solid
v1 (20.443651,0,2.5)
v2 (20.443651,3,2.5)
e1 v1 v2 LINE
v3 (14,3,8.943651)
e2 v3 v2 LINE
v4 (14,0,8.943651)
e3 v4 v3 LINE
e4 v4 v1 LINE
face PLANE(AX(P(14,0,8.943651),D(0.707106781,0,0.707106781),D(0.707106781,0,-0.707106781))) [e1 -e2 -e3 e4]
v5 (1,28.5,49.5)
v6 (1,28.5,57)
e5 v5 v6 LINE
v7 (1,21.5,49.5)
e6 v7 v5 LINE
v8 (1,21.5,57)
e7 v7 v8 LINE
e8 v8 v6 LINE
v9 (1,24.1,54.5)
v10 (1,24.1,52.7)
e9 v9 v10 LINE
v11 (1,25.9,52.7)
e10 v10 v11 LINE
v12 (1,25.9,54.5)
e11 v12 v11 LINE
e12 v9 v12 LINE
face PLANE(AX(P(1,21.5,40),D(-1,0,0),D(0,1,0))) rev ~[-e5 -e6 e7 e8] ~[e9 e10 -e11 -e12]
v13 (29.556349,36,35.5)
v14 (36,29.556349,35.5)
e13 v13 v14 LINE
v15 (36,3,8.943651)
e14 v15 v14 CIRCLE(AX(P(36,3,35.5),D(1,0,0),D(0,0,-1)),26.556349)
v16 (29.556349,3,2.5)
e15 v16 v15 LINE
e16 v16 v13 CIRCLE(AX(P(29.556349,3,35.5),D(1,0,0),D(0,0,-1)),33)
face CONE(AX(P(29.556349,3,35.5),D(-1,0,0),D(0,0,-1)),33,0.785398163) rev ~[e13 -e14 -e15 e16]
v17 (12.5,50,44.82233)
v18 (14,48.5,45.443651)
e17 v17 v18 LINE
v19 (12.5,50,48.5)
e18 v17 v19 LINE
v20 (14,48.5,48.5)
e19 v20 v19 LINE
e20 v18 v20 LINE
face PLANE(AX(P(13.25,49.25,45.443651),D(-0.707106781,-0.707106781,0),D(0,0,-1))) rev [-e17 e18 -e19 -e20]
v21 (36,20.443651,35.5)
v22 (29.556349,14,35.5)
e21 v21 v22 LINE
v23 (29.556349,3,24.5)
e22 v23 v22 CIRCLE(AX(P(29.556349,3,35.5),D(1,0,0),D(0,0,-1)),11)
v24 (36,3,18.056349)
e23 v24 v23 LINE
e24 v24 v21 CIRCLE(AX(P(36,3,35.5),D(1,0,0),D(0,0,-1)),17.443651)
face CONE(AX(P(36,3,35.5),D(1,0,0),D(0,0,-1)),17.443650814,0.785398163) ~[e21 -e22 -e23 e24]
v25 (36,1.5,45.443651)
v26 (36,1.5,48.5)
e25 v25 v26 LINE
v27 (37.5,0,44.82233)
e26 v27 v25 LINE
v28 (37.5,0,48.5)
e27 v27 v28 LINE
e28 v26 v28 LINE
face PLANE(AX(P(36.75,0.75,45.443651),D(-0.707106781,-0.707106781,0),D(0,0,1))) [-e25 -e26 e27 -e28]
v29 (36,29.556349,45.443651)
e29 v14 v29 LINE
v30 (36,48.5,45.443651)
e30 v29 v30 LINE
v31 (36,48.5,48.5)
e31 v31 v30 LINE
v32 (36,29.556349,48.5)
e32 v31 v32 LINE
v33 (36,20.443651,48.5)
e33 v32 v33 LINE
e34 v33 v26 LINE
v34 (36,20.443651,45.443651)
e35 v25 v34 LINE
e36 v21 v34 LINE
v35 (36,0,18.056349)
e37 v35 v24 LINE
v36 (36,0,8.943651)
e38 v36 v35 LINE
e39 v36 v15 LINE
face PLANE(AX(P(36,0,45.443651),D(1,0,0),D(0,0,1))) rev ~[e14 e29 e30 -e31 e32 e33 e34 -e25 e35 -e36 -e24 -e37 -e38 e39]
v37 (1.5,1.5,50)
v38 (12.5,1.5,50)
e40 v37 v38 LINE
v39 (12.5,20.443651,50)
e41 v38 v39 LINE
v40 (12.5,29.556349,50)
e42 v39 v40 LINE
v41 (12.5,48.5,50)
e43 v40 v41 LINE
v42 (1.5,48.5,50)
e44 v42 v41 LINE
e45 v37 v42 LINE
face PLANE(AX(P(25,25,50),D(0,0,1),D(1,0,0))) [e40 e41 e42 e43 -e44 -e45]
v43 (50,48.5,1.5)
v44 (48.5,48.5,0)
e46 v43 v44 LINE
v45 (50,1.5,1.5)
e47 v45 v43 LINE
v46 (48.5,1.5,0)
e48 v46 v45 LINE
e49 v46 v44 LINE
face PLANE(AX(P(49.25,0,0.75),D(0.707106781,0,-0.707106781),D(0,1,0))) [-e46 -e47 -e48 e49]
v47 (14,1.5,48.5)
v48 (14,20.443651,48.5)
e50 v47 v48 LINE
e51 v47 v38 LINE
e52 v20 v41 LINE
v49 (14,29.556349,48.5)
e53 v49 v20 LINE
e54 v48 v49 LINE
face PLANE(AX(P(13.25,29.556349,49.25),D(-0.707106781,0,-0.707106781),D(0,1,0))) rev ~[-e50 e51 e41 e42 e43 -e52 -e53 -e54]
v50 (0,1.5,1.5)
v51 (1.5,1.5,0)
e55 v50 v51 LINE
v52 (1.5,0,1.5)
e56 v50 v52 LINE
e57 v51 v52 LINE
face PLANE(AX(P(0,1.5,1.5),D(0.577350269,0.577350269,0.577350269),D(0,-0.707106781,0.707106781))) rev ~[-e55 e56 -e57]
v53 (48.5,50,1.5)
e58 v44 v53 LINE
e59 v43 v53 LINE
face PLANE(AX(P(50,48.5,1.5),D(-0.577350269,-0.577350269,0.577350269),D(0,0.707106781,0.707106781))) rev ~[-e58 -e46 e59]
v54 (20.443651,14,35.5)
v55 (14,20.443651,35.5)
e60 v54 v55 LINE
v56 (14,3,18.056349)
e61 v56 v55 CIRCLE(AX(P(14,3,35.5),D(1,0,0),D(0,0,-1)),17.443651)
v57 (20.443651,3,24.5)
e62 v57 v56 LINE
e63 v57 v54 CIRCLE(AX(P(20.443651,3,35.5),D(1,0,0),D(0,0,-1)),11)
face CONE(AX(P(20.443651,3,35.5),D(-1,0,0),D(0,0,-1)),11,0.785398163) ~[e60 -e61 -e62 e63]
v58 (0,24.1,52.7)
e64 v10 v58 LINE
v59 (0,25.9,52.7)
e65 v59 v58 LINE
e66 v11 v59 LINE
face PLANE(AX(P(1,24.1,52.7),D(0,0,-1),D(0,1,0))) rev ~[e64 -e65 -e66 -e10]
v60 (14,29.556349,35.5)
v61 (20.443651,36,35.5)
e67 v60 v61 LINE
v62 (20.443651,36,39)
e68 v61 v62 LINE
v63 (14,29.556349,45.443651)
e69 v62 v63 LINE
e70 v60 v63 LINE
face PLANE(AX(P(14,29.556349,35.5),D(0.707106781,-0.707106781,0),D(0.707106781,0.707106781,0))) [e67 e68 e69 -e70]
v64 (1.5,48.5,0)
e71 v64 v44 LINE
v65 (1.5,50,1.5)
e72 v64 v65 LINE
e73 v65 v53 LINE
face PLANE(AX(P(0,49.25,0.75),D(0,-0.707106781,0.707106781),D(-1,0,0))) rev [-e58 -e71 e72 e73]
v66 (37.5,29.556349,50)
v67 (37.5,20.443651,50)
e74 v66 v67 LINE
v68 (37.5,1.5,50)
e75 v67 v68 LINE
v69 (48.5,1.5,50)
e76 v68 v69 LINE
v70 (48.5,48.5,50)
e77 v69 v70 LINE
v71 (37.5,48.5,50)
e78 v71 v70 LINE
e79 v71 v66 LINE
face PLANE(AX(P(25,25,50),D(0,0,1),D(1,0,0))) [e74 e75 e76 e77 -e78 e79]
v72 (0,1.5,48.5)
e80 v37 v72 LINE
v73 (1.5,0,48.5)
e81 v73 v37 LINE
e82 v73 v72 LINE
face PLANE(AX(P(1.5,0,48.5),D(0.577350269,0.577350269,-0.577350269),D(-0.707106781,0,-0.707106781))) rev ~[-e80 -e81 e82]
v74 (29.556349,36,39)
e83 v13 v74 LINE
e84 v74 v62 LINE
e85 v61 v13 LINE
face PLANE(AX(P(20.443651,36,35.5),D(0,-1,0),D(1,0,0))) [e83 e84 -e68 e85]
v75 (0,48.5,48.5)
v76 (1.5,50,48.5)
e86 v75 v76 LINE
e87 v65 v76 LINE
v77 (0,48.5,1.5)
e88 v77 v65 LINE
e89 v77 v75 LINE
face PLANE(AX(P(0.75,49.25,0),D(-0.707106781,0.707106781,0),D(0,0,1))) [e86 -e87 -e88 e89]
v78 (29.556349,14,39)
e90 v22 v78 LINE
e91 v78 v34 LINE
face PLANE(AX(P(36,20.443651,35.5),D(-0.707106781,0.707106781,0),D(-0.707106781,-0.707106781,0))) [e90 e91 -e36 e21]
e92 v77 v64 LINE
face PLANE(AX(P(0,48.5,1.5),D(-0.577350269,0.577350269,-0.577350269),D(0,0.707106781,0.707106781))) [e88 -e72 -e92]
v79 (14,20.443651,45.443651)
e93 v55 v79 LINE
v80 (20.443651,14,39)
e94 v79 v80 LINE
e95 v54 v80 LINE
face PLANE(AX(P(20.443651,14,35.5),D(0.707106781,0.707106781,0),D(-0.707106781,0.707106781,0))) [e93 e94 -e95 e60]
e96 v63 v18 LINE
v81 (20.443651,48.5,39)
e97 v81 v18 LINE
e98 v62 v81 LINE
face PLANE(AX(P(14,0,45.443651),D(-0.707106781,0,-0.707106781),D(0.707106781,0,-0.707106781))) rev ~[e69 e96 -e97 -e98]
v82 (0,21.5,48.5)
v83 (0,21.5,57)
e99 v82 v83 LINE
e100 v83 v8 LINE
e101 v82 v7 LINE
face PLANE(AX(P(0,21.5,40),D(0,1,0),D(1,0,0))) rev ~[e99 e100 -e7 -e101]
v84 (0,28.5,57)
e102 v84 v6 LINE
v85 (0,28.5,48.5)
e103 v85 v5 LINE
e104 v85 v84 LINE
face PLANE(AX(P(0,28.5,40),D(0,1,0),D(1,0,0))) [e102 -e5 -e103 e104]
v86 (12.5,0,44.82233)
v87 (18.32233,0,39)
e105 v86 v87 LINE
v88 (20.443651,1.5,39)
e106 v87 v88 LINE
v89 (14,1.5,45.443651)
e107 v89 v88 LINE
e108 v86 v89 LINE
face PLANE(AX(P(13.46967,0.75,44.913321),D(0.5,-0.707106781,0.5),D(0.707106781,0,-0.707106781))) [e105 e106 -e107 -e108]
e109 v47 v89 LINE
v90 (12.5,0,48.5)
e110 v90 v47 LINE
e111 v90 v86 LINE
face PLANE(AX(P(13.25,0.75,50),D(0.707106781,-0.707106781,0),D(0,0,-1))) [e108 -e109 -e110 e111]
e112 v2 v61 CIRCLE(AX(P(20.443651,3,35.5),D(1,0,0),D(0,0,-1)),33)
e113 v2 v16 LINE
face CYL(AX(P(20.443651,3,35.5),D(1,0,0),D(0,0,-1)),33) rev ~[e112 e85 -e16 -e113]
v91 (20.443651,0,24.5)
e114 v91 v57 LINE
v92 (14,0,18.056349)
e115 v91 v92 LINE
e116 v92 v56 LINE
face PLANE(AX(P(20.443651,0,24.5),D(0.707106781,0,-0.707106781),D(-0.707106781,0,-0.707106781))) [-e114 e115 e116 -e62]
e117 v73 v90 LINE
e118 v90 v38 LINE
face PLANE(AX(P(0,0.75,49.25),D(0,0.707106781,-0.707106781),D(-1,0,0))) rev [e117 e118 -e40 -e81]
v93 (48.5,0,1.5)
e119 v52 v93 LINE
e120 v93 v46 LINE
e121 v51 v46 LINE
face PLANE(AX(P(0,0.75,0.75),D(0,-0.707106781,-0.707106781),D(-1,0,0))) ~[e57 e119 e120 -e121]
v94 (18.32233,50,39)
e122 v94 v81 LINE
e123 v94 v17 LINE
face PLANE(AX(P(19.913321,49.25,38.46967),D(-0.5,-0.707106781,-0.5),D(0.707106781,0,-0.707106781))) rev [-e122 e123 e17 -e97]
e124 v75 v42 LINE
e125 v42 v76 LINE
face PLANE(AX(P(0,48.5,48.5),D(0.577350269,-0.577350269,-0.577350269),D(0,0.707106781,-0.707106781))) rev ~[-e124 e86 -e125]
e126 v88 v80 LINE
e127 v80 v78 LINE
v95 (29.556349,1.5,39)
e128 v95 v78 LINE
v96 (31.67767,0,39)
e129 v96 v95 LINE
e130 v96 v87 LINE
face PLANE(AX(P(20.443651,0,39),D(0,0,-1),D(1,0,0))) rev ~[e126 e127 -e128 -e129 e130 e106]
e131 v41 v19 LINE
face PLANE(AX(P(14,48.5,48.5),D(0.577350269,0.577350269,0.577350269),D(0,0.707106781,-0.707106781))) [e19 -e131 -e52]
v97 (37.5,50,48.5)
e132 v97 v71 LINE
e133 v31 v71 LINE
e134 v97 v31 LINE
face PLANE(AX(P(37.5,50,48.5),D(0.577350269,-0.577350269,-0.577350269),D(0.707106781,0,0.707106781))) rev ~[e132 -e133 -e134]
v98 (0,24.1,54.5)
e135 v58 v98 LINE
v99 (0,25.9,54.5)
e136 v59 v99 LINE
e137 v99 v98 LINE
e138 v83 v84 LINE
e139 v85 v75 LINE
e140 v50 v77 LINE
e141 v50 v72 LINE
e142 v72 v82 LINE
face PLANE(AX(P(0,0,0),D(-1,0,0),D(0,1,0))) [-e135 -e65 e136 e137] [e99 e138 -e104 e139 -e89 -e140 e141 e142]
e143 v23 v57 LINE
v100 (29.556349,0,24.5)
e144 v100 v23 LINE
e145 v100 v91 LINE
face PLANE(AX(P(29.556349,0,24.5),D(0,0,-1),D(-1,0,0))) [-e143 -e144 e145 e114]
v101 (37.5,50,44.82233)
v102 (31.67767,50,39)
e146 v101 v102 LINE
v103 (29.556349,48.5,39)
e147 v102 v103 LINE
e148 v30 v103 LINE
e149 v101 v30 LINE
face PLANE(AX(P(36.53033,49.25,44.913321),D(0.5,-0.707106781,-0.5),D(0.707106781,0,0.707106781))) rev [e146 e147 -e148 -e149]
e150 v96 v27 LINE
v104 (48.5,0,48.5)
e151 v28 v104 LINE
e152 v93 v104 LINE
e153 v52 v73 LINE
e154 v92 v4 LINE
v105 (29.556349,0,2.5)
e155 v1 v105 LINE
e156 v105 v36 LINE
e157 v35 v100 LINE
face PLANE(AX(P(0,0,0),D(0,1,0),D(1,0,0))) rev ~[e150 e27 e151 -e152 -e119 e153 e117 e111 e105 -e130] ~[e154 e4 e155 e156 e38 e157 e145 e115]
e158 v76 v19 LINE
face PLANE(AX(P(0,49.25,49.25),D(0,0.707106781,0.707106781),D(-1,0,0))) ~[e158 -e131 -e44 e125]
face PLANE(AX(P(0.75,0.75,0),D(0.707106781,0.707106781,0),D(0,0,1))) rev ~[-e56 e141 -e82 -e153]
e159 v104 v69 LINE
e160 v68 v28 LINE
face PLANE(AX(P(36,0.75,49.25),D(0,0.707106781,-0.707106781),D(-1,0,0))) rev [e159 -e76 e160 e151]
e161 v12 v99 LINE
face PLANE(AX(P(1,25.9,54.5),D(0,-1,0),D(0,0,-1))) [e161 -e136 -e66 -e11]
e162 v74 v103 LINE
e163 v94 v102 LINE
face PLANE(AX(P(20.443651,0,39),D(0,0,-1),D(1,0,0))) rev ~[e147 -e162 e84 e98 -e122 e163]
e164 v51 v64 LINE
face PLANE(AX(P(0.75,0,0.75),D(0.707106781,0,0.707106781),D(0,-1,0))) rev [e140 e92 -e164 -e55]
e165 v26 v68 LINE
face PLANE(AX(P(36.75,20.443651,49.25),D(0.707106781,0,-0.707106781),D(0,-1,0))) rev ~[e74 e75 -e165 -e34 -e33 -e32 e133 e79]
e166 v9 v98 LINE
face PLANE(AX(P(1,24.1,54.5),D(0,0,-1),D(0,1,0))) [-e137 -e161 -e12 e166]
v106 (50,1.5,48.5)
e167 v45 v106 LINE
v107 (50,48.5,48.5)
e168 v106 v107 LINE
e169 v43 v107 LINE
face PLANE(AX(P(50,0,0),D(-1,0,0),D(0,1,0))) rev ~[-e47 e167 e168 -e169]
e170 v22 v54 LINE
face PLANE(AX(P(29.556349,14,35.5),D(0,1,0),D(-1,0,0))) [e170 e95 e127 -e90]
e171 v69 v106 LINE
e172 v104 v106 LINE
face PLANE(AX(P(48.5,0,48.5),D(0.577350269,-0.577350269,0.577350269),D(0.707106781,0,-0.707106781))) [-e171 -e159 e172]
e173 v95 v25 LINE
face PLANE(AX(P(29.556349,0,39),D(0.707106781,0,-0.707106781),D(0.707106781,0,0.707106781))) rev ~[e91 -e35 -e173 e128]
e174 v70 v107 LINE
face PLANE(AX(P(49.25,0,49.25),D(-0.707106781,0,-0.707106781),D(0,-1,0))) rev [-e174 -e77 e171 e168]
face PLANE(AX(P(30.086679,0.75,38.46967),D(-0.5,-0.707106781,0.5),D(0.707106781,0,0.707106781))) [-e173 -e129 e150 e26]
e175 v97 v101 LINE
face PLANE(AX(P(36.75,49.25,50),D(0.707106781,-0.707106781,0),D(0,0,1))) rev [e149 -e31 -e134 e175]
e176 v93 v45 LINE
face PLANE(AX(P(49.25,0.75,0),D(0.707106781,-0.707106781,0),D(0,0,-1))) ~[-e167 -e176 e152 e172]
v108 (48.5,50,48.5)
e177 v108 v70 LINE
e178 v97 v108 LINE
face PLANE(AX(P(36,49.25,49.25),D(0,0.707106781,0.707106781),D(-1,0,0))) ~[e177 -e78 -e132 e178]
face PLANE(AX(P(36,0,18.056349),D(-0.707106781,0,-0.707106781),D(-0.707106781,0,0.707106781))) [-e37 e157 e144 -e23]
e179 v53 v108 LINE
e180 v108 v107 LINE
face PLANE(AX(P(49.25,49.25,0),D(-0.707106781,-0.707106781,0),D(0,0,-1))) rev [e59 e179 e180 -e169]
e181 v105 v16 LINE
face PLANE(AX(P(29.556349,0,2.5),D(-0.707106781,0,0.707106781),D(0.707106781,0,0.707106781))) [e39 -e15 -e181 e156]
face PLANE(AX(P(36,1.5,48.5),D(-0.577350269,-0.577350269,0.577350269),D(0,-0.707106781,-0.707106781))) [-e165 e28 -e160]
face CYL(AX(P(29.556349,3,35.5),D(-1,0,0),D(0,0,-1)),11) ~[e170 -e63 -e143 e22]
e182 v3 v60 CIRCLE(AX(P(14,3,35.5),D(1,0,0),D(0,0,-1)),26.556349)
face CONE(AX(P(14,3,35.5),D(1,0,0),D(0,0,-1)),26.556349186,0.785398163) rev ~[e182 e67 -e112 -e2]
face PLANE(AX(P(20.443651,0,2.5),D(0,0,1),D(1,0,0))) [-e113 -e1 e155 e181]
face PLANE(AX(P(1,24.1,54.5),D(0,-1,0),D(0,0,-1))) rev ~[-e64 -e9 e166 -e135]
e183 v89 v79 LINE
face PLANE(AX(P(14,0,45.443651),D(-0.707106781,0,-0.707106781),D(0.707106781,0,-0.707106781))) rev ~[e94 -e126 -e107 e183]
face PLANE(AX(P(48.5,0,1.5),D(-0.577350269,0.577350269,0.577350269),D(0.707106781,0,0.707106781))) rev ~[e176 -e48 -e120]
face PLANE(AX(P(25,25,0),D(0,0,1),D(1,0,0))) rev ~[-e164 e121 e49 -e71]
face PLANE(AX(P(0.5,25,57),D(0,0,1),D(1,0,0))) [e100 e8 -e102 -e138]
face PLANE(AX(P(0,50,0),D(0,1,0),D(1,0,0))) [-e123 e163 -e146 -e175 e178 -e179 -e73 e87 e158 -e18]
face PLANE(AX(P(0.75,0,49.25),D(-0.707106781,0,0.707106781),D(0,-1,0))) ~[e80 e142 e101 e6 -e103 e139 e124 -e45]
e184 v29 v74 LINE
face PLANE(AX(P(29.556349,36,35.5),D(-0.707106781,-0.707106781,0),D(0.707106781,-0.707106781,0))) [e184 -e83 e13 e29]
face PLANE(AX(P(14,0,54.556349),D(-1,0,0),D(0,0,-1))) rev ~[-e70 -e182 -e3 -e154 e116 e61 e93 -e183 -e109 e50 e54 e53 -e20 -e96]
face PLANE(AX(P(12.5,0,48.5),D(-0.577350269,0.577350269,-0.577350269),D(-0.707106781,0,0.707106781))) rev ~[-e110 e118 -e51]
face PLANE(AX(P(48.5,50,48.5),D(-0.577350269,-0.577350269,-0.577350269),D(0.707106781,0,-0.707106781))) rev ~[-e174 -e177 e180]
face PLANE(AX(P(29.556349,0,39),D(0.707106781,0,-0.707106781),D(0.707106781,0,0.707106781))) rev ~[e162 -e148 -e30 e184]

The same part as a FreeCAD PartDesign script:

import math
import FreeCAD as App
import Part
import Sketcher
from FreeCAD import Vector
Q = App.Units.Quantity


def edges_at(feature, points):
    """Names of the edges that pass closest to the given points."""
    edges = feature.Shape.Edges
    near = lambda p: min(range(len(edges)), key=lambda i: edges[i].distToShape(Part.Vertex(*p))[0])
    return sorted({f"Edge{near(p) + 1}" for p in points})


def add_polygon(sketch, points):
    """Adds a closed chain of lines whose ends are joined by coincident constraints."""
    first, n = sketch.GeometryCount, len(points)
    for a, b in zip(points, points[1:] + points[:1]):
        sketch.addGeometry(Part.LineSegment(App.Vector(*a, 0), App.Vector(*b, 0)), False)
    for i in range(n):
        sketch.addConstraint(Sketcher.Constraint("Coincident", first + i, 2, first + (i + 1) % n, 1))

doc = App.newDocument("Part")
body = doc.addObject("PartDesign::Body", "Body")

# Sketch on XY plane
sketch1 = body.newObject("Sketcher::SketchObject", "Sketch")
sketch1.AttachmentSupport = (doc.getObject("XY_Plane"), [""])
sketch1.MapMode = "FlatFace"
add_polygon(sketch1, [(0, 50), (0, 0), (50, 0), (50, 50)])  # lines 0-3
sketch1.addConstraint(Sketcher.Constraint("Vertical", 0))
sketch1.addConstraint(Sketcher.Constraint("Horizontal", 1))
sketch1.addConstraint(Sketcher.Constraint("Vertical", 2))
sketch1.addConstraint(Sketcher.Constraint("Horizontal", 3))
sketch1.addConstraint(Sketcher.Constraint("Coincident", 0, 2, -1, 1))
sketch1.addConstraint(Sketcher.Constraint("Equal", 3, 0))
sketch1.addConstraint(Sketcher.Constraint("DistanceX", 1, 1, 1, 2, Q("50 mm")))
pad1 = body.newObject("PartDesign::Pad", "Pad")
pad1.Profile = sketch1
pad1.Length = 50

# Sketch on XZ plane
sketch2 = body.newObject("Sketcher::SketchObject", "Sketch001")
sketch2.AttachmentSupport = (doc.getObject("XZ_Plane"), [""])
sketch2.MapMode = "FlatFace"
add_polygon(sketch2, [(36, 45), (36, 55), (30, 61), (20, 61), (14, 55), (14, 45), (20, 39), (30, 39)])  # lines 0-7
sketch2.addConstraint(Sketcher.Constraint("Vertical", 0))
sketch2.addConstraint(Sketcher.Constraint("Horizontal", 2))
sketch2.addConstraint(Sketcher.Constraint("Vertical", 4))
sketch2.addConstraint(Sketcher.Constraint("Horizontal", 6))
sketch2.addConstraint(Sketcher.Constraint("Perpendicular", 1, 3))
sketch2.addConstraint(Sketcher.Constraint("Perpendicular", 3, 5))
sketch2.addConstraint(Sketcher.Constraint("Perpendicular", 5, 7))
sketch2.addConstraint(Sketcher.Constraint("Horizontal", 0, 2, 3, 2))
sketch2.addConstraint(Sketcher.Constraint("Horizontal", 4, 2, 7, 2))
sketch2.addConstraint(Sketcher.Constraint("Vertical", 2, 2, 5, 2))
sketch2.addConstraint(Sketcher.Constraint("Vertical", 1, 2, 6, 2))
sketch2.addConstraint(Sketcher.Constraint("Equal", 6, 0))
sketch2.addConstraint(Sketcher.Constraint("DistanceX", -1, 1, 0, 2, Q("36 mm")))
sketch2.addConstraint(Sketcher.Constraint("DistanceY", -1, 1, 1, 2, Q("61 mm")))
sketch2.addConstraint(Sketcher.Constraint("DistanceX", -1, 1, 3, 2, Q("14 mm")))
sketch2.addConstraint(Sketcher.Constraint("DistanceX", 2, 2, 2, 1, Q("9.112698 mm")))
pocket1 = body.newObject("PartDesign::Pocket", "Pocket")
pocket1.Profile = sketch2
pocket1.Type = "ThroughAll"

# Sketch on XZ plane
sketch3 = body.newObject("Sketcher::SketchObject", "Sketch002")
sketch3.AttachmentSupport = (doc.getObject("XZ_Plane"), [""])
sketch3.MapMode = "FlatFace"
add_polygon(sketch3, [(30, 24), (20, 24), (14, 18), (14, 9), (20, 2), (30, 2), (36, 9), (36, 18)])  # lines 0-7
sketch3.addConstraint(Sketcher.Constraint("Horizontal", 0))
sketch3.addConstraint(Sketcher.Constraint("Vertical", 2))
sketch3.addConstraint(Sketcher.Constraint("Horizontal", 4))
sketch3.addConstraint(Sketcher.Constraint("Vertical", 6))
sketch3.addConstraint(Sketcher.Constraint("Perpendicular", 1, 3))
sketch3.addConstraint(Sketcher.Constraint("Perpendicular", 3, 5))
sketch3.addConstraint(Sketcher.Constraint("Perpendicular", 5, 7))
sketch3.addConstraint(Sketcher.Constraint("Horizontal", 2, 2, 5, 2))
sketch3.addConstraint(Sketcher.Constraint("Horizontal", 1, 2, 6, 2))
sketch3.addConstraint(Sketcher.Constraint("Vertical", 0, 2, 3, 2))
sketch3.addConstraint(Sketcher.Constraint("Vertical", 4, 2, 7, 2))
sketch3.addConstraint(Sketcher.Constraint("Equal", 4, 2))
sketch3.addConstraint(Sketcher.Constraint("DistanceX", -1, 1, 1, 2, Q("14 mm")))
sketch3.addConstraint(Sketcher.Constraint("DistanceX", -1, 1, 5, 2, Q("36 mm")))
sketch3.addConstraint(Sketcher.Constraint("DistanceY", -1, 1, 0, 2, Q("24.5 mm")))
sketch3.addConstraint(Sketcher.Constraint("DistanceX", 0, 2, 0, 1, Q("9.112698 mm")))

# Sketch on YZ plane
sketch4 = body.newObject("Sketcher::SketchObject", "Sketch003")
sketch4.AttachmentSupport = (doc.getObject("YZ_Plane"), [""])
sketch4.MapMode = "FlatFace"
sketch4.AttachmentOffset = App.Placement(Vector(0, 0, 25), App.Rotation())
sketch4.addGeometry(Part.LineSegment(Vector(0, 13.5, 0), Vector(3, 13.5, 0)), False)
sketch4.addGeometry(Part.ArcOfCircle(Part.Circle(Vector(3, 35.5, 0), Vector(0, 0, 1), 22), math.radians(-90), math.radians(0)), False)
sketch4.addGeometry(Part.LineSegment(Vector(25, 35.5, 0), Vector(25, 50, 0)), False)
sketch4.addConstraint(Sketcher.Constraint("Tangent", 0, 2, 1, 1))
sketch4.addConstraint(Sketcher.Constraint("Tangent", 1, 2, 2, 1))
sketch4.addConstraint(Sketcher.Constraint("Horizontal", 0))
sketch4.addConstraint(Sketcher.Constraint("Vertical", 2))
sketch4.addConstraint(Sketcher.Constraint("PointOnObject", 0, 1, -2))
sketch4.addConstraint(Sketcher.Constraint("Radius", 1, Q("22 mm")))
sketch4.addConstraint(Sketcher.Constraint("DistanceX", 0, 1, 0, 2, Q("3 mm")))
sketch4.addConstraint(Sketcher.Constraint("DistanceY", 2, 1, 2, 2, Q("14.5 mm")))
sketch4.addConstraint(Sketcher.Constraint("DistanceY", -1, 1, 2, 2, Q("50 mm")))
doc.recompute()

subtractivepipe = body.newObject("PartDesign::SubtractivePipe", "SubtractivePipe")
subtractivepipe.Profile = sketch3
subtractivepipe.Spine = (sketch4, ["Edge1", "Edge2", "Edge3"])
doc.recompute()

chamfer = body.newObject("PartDesign::Chamfer", "Chamfer")
chamfer.Base = (subtractivepipe, edges_at(subtractivepipe, [
    (50, 25, 50),
    (43, 0, 50),
    (7, 50, 50),
    (36, 25, 50),
    (14, 25, 50),
    (14, 50, 47.722),
    (36, 50, 47.722),
    (36, 0, 47.722),
    (43, 50, 50),
    (14, 0, 47.722),
    (17.222, 0, 42.222),
    (32.778, 0, 42.222),
    (32.778, 50, 42.222),
    (17.222, 50, 42.222),
    (0, 25, 50),
    (25, 50, 0),
    (50, 25, 0),
    (25, 0, 0),
    (0, 25, 0),
    (7, 0, 50),
    (0, 50, 25),
    (50, 50, 25),
    (50, 0, 25),
    (0, 0, 25),
]))
chamfer.Size = 1.5

# Sketch on XY plane
sketch5 = body.newObject("Sketcher::SketchObject", "Sketch004")
sketch5.AttachmentSupport = (doc.getObject("XY_Plane"), [""])
sketch5.MapMode = "FlatFace"
sketch5.AttachmentOffset = App.Placement(Vector(0, 0, 50), App.Rotation())
add_polygon(sketch5, [(0, 28.5), (0, 21.5), (1, 21.5), (1, 28.5)])  # lines 0-3
sketch5.addConstraint(Sketcher.Constraint("Vertical", 0))
sketch5.addConstraint(Sketcher.Constraint("Horizontal", 1))
sketch5.addConstraint(Sketcher.Constraint("Vertical", 2))
sketch5.addConstraint(Sketcher.Constraint("Horizontal", 3))
sketch5.addConstraint(Sketcher.Constraint("PointOnObject", 0, 2, -2))
sketch5.addConstraint(Sketcher.Constraint("DistanceX", 1, 1, 1, 2, Q("1 mm")))
sketch5.addConstraint(Sketcher.Constraint("DistanceY", 0, 2, 0, 1, Q("7 mm")))
sketch5.addConstraint(Sketcher.Constraint("DistanceY", -1, 1, 0, 2, Q("21.5 mm")))
pad2 = body.newObject("PartDesign::Pad", "Pad001")
pad2.Profile = sketch5
pad2.Type = "TwoLengths"
pad2.Length = 7
pad2.Length2 = 10

# Sketch on YZ plane
sketch6 = body.newObject("Sketcher::SketchObject", "Sketch005")
sketch6.AttachmentSupport = (doc.getObject("YZ_Plane"), [""])
sketch6.MapMode = "FlatFace"
sketch6.AttachmentOffset = App.Placement(Vector(0, 0, 1), App.Rotation())
add_polygon(sketch6, [(25.9, 54.5), (24.1, 54.5), (24.1, 52.7), (25.9, 52.7)])  # lines 0-3
sketch6.addConstraint(Sketcher.Constraint("Horizontal", 0))
sketch6.addConstraint(Sketcher.Constraint("Vertical", 1))
sketch6.addConstraint(Sketcher.Constraint("Horizontal", 2))
sketch6.addConstraint(Sketcher.Constraint("Vertical", 3))
sketch6.addConstraint(Sketcher.Constraint("Equal", 2, 1))
sketch6.addConstraint(Sketcher.Constraint("DistanceX", 0, 2, 0, 1, Q("1.8 mm")))
sketch6.addConstraint(Sketcher.Constraint("DistanceX", -1, 1, 0, 2, Q("24.1 mm")))
sketch6.addConstraint(Sketcher.Constraint("DistanceY", -1, 1, 0, 2, Q("54.5 mm")))
pocket2 = body.newObject("PartDesign::Pocket", "Pocket001")
pocket2.Profile = sketch6
pocket2.Length = 7

doc.recompute()
